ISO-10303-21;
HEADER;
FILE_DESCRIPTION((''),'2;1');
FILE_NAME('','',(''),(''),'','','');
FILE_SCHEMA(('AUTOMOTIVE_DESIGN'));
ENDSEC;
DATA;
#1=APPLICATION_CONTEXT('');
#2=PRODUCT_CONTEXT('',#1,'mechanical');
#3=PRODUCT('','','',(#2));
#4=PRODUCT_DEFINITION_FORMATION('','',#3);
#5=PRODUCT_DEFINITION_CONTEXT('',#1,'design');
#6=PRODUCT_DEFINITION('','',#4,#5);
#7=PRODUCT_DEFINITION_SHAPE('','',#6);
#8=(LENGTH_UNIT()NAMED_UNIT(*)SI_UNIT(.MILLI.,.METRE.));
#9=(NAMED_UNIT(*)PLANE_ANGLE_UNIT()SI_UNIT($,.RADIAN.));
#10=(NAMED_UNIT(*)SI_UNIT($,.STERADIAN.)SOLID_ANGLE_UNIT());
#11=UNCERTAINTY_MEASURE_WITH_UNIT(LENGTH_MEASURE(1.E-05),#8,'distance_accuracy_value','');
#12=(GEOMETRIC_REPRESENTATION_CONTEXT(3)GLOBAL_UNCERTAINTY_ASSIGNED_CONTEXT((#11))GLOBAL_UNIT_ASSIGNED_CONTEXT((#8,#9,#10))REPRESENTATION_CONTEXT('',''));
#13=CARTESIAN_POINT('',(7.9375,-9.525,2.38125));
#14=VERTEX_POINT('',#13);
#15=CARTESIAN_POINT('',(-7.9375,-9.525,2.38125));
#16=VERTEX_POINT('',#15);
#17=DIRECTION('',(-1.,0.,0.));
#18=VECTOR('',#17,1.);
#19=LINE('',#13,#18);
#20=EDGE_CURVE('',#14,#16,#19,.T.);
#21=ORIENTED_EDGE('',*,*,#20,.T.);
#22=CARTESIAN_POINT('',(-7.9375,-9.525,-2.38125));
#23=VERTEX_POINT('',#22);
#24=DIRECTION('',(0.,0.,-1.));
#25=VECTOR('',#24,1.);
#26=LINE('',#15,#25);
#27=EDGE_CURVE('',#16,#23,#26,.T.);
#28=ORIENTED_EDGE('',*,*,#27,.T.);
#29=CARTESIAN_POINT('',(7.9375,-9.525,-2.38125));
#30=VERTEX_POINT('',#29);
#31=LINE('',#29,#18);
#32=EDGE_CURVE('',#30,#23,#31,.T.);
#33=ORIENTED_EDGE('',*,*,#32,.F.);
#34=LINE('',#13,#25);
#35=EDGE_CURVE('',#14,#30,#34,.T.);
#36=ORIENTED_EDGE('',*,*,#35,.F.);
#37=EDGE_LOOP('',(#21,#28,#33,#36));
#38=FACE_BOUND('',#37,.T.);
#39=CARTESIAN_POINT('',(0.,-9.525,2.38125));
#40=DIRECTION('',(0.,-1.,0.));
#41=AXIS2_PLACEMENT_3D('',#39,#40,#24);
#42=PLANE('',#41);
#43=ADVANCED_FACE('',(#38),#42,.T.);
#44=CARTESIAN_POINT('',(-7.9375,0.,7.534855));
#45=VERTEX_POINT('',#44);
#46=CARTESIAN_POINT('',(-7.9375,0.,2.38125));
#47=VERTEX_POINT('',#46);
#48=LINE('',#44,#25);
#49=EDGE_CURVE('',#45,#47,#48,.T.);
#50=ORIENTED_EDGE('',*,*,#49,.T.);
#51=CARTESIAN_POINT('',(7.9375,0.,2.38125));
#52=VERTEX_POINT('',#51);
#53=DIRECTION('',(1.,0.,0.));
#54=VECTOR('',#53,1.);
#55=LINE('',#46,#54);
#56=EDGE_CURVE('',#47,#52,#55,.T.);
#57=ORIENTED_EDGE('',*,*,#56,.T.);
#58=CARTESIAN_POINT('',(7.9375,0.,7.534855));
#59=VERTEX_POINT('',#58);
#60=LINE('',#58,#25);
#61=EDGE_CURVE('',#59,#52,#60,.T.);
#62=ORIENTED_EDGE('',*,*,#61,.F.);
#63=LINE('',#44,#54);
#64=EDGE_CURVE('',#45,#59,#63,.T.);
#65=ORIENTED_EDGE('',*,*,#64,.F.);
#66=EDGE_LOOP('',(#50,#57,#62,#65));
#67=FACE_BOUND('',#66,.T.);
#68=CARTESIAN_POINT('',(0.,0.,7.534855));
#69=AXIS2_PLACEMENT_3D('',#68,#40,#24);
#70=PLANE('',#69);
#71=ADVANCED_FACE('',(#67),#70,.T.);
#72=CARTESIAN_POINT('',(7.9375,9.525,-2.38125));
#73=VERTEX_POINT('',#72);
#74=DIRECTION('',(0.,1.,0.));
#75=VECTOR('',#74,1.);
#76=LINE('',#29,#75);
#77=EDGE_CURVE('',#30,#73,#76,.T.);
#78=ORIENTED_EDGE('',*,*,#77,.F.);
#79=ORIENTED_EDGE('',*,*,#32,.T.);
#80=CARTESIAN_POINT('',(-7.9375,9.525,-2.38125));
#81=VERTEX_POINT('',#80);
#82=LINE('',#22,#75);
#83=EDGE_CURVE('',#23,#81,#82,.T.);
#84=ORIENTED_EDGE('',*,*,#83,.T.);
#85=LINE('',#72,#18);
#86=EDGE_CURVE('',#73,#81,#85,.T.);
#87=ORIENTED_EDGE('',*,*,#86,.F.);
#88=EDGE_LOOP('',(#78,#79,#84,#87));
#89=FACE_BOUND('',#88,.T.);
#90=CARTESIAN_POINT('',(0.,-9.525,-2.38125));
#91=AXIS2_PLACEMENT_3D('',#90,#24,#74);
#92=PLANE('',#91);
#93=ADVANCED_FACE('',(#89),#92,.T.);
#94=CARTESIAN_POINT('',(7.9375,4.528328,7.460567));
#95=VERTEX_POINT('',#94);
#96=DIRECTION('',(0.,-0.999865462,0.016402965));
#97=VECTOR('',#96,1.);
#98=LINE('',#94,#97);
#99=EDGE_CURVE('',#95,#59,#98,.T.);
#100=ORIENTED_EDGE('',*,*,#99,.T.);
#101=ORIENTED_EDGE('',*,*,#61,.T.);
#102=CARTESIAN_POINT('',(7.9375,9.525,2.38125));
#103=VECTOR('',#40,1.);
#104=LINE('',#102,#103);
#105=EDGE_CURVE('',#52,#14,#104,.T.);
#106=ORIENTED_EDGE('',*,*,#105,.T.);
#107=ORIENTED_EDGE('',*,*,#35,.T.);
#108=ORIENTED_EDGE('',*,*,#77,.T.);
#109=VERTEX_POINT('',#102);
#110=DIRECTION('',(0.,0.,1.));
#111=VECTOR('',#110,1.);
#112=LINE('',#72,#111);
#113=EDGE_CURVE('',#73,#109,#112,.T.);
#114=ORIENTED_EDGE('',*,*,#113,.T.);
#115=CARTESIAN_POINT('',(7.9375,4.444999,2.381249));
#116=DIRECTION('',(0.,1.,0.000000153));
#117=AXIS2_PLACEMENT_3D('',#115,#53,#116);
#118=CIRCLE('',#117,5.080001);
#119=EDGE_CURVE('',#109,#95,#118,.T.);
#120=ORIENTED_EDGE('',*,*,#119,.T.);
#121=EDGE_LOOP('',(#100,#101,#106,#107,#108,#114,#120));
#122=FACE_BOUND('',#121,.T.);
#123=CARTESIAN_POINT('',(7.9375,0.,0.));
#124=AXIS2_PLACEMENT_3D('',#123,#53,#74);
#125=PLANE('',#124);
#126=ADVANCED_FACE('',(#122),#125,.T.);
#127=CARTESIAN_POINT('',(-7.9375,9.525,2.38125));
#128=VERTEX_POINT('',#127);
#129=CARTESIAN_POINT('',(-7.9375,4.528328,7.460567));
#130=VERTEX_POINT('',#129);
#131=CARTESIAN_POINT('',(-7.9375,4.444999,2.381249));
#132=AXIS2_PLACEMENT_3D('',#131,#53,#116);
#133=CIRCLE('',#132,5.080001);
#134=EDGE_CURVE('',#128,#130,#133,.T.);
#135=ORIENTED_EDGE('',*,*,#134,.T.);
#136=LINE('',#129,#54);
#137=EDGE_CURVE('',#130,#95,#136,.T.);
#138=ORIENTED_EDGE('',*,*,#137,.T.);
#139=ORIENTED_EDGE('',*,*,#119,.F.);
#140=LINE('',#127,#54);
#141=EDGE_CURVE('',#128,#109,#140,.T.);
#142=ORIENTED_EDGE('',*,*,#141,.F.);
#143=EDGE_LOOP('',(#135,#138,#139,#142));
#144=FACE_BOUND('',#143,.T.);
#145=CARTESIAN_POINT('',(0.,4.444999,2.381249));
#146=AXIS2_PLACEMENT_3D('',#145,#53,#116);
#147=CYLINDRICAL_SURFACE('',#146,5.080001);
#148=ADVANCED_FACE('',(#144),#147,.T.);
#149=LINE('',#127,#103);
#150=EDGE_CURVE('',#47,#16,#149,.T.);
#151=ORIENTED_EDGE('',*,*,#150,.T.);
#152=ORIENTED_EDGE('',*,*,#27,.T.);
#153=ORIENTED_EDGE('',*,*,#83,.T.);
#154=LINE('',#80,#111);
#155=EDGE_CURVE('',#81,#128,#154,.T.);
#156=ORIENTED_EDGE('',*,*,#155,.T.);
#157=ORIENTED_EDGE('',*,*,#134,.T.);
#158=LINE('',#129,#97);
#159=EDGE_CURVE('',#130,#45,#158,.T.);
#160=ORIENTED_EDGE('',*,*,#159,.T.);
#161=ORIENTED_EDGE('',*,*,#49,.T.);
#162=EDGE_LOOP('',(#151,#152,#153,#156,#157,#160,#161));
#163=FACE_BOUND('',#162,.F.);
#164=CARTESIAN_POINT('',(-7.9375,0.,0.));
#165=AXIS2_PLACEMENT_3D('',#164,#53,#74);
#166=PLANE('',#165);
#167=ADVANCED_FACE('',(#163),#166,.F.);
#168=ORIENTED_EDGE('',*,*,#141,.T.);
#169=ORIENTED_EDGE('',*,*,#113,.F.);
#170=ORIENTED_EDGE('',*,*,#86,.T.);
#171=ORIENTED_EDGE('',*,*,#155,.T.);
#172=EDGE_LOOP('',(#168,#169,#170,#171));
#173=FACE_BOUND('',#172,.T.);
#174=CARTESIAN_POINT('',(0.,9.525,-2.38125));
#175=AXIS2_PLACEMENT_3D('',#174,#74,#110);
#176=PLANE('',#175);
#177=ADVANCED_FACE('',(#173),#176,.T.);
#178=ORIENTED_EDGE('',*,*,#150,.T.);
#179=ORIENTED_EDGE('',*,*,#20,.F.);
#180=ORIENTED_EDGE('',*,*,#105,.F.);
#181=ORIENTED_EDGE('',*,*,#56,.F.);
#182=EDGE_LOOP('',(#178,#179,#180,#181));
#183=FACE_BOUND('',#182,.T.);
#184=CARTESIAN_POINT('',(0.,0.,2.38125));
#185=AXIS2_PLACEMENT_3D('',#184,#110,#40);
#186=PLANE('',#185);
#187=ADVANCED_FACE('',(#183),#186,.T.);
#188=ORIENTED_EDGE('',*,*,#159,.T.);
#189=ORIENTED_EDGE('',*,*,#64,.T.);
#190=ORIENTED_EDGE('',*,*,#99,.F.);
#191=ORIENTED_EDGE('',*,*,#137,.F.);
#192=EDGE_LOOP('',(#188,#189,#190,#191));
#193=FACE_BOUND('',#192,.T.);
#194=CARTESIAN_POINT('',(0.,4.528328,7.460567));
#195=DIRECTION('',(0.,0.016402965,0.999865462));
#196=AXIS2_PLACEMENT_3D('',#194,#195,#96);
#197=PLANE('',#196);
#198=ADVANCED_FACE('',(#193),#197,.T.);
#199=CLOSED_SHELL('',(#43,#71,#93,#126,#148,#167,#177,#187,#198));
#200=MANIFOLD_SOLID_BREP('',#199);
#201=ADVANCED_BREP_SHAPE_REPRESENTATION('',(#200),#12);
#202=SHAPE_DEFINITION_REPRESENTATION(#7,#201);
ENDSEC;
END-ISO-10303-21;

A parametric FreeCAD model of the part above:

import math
import FreeCAD as App
import Part
import Sketcher
from FreeCAD import Vector
Q = App.Units.Quantity

doc = App.newDocument("Part")
body = doc.addObject("PartDesign::Body", "Body")

sketch1 = body.newObject("Sketcher::SketchObject", "Sketch")
sketch1.AttachmentSupport = (doc.getObject("YZ_Plane"), [""])
sketch1.MapMode = "FlatFace"
sketch1.addGeometry(Part.LineSegment(Vector(9.5, -2.4, 0), Vector(9.5, 2.4, 0)), False)
sketch1.addGeometry(Part.ArcOfCircle(Part.Circle(Vector(4.4, 2.4, 0), Vector(0, 0, 1), 5.1), math.radians(0), math.radians(89)), False)
sketch1.addGeometry(Part.LineSegment(Vector(4.5, 7.5, 0), Vector(0, 7.5, 0)), False)
sketch1.addGeometry(Part.LineSegment(Vector(0, 7.5, 0), Vector(0, 2.4, 0)), False)
sketch1.addGeometry(Part.LineSegment(Vector(0, 2.4, 0), Vector(-9.5, 2.4, 0)), False)
sketch1.addGeometry(Part.LineSegment(Vector(-9.5, 2.4, 0), Vector(-9.5, -2.4, 0)), False)
sketch1.addGeometry(Part.LineSegment(Vector(-9.5, -2.4, 0), Vector(9.5, -2.4, 0)), False)
sketch1.addConstraint(Sketcher.Constraint("Tangent", 0, 2, 1, 1))
sketch1.addConstraint(Sketcher.Constraint("Tangent", 1, 2, 2, 1))
sketch1.addConstraint(Sketcher.Constraint("Coincident", 2, 2, 3, 1))
sketch1.addConstraint(Sketcher.Constraint("Coincident", 3, 2, 4, 1))
sketch1.addConstraint(Sketcher.Constraint("Coincident", 4, 2, 5, 1))
sketch1.addConstraint(Sketcher.Constraint("Coincident", 5, 2, 6, 1))
sketch1.addConstraint(Sketcher.Constraint("Coincident", 6, 2, 0, 1))
sketch1.addConstraint(Sketcher.Constraint("Vertical", 0))
sketch1.addConstraint(Sketcher.Constraint("Vertical", 3))
sketch1.addConstraint(Sketcher.Constraint("Horizontal", 4))
sketch1.addConstraint(Sketcher.Constraint("Vertical", 5))
sketch1.addConstraint(Sketcher.Constraint("Horizontal", 6))
sketch1.addConstraint(Sketcher.Constraint("Symmetric", 0, 2, 5, 2, -1, 1))
sketch1.addConstraint(Sketcher.Constraint("PointOnObject", 2, 2, -2))
sketch1.addConstraint(Sketcher.Constraint("Horizontal", 0, 2, 3, 2))
sketch1.addConstraint(Sketcher.Constraint("Radius", 1, Q("0.2 in")))
sketch1.addConstraint(Sketcher.Constraint("DistanceX", 6, 1, 6, 2, Q("0.75 in")))
sketch1.addConstraint(Sketcher.Constraint("DistanceY", 0, 1, 0, 2, Q("0.1875 in")))
sketch1.addConstraint(Sketcher.Constraint("DistanceY", 3, 2, 3, 1, Q("5.153605 mm")))
pad1 = body.newObject("PartDesign::Pad", "Pad")
pad1.Profile = sketch1
pad1.Length = Q("0.625 in")
pad1.Midplane = True

doc.recompute()
